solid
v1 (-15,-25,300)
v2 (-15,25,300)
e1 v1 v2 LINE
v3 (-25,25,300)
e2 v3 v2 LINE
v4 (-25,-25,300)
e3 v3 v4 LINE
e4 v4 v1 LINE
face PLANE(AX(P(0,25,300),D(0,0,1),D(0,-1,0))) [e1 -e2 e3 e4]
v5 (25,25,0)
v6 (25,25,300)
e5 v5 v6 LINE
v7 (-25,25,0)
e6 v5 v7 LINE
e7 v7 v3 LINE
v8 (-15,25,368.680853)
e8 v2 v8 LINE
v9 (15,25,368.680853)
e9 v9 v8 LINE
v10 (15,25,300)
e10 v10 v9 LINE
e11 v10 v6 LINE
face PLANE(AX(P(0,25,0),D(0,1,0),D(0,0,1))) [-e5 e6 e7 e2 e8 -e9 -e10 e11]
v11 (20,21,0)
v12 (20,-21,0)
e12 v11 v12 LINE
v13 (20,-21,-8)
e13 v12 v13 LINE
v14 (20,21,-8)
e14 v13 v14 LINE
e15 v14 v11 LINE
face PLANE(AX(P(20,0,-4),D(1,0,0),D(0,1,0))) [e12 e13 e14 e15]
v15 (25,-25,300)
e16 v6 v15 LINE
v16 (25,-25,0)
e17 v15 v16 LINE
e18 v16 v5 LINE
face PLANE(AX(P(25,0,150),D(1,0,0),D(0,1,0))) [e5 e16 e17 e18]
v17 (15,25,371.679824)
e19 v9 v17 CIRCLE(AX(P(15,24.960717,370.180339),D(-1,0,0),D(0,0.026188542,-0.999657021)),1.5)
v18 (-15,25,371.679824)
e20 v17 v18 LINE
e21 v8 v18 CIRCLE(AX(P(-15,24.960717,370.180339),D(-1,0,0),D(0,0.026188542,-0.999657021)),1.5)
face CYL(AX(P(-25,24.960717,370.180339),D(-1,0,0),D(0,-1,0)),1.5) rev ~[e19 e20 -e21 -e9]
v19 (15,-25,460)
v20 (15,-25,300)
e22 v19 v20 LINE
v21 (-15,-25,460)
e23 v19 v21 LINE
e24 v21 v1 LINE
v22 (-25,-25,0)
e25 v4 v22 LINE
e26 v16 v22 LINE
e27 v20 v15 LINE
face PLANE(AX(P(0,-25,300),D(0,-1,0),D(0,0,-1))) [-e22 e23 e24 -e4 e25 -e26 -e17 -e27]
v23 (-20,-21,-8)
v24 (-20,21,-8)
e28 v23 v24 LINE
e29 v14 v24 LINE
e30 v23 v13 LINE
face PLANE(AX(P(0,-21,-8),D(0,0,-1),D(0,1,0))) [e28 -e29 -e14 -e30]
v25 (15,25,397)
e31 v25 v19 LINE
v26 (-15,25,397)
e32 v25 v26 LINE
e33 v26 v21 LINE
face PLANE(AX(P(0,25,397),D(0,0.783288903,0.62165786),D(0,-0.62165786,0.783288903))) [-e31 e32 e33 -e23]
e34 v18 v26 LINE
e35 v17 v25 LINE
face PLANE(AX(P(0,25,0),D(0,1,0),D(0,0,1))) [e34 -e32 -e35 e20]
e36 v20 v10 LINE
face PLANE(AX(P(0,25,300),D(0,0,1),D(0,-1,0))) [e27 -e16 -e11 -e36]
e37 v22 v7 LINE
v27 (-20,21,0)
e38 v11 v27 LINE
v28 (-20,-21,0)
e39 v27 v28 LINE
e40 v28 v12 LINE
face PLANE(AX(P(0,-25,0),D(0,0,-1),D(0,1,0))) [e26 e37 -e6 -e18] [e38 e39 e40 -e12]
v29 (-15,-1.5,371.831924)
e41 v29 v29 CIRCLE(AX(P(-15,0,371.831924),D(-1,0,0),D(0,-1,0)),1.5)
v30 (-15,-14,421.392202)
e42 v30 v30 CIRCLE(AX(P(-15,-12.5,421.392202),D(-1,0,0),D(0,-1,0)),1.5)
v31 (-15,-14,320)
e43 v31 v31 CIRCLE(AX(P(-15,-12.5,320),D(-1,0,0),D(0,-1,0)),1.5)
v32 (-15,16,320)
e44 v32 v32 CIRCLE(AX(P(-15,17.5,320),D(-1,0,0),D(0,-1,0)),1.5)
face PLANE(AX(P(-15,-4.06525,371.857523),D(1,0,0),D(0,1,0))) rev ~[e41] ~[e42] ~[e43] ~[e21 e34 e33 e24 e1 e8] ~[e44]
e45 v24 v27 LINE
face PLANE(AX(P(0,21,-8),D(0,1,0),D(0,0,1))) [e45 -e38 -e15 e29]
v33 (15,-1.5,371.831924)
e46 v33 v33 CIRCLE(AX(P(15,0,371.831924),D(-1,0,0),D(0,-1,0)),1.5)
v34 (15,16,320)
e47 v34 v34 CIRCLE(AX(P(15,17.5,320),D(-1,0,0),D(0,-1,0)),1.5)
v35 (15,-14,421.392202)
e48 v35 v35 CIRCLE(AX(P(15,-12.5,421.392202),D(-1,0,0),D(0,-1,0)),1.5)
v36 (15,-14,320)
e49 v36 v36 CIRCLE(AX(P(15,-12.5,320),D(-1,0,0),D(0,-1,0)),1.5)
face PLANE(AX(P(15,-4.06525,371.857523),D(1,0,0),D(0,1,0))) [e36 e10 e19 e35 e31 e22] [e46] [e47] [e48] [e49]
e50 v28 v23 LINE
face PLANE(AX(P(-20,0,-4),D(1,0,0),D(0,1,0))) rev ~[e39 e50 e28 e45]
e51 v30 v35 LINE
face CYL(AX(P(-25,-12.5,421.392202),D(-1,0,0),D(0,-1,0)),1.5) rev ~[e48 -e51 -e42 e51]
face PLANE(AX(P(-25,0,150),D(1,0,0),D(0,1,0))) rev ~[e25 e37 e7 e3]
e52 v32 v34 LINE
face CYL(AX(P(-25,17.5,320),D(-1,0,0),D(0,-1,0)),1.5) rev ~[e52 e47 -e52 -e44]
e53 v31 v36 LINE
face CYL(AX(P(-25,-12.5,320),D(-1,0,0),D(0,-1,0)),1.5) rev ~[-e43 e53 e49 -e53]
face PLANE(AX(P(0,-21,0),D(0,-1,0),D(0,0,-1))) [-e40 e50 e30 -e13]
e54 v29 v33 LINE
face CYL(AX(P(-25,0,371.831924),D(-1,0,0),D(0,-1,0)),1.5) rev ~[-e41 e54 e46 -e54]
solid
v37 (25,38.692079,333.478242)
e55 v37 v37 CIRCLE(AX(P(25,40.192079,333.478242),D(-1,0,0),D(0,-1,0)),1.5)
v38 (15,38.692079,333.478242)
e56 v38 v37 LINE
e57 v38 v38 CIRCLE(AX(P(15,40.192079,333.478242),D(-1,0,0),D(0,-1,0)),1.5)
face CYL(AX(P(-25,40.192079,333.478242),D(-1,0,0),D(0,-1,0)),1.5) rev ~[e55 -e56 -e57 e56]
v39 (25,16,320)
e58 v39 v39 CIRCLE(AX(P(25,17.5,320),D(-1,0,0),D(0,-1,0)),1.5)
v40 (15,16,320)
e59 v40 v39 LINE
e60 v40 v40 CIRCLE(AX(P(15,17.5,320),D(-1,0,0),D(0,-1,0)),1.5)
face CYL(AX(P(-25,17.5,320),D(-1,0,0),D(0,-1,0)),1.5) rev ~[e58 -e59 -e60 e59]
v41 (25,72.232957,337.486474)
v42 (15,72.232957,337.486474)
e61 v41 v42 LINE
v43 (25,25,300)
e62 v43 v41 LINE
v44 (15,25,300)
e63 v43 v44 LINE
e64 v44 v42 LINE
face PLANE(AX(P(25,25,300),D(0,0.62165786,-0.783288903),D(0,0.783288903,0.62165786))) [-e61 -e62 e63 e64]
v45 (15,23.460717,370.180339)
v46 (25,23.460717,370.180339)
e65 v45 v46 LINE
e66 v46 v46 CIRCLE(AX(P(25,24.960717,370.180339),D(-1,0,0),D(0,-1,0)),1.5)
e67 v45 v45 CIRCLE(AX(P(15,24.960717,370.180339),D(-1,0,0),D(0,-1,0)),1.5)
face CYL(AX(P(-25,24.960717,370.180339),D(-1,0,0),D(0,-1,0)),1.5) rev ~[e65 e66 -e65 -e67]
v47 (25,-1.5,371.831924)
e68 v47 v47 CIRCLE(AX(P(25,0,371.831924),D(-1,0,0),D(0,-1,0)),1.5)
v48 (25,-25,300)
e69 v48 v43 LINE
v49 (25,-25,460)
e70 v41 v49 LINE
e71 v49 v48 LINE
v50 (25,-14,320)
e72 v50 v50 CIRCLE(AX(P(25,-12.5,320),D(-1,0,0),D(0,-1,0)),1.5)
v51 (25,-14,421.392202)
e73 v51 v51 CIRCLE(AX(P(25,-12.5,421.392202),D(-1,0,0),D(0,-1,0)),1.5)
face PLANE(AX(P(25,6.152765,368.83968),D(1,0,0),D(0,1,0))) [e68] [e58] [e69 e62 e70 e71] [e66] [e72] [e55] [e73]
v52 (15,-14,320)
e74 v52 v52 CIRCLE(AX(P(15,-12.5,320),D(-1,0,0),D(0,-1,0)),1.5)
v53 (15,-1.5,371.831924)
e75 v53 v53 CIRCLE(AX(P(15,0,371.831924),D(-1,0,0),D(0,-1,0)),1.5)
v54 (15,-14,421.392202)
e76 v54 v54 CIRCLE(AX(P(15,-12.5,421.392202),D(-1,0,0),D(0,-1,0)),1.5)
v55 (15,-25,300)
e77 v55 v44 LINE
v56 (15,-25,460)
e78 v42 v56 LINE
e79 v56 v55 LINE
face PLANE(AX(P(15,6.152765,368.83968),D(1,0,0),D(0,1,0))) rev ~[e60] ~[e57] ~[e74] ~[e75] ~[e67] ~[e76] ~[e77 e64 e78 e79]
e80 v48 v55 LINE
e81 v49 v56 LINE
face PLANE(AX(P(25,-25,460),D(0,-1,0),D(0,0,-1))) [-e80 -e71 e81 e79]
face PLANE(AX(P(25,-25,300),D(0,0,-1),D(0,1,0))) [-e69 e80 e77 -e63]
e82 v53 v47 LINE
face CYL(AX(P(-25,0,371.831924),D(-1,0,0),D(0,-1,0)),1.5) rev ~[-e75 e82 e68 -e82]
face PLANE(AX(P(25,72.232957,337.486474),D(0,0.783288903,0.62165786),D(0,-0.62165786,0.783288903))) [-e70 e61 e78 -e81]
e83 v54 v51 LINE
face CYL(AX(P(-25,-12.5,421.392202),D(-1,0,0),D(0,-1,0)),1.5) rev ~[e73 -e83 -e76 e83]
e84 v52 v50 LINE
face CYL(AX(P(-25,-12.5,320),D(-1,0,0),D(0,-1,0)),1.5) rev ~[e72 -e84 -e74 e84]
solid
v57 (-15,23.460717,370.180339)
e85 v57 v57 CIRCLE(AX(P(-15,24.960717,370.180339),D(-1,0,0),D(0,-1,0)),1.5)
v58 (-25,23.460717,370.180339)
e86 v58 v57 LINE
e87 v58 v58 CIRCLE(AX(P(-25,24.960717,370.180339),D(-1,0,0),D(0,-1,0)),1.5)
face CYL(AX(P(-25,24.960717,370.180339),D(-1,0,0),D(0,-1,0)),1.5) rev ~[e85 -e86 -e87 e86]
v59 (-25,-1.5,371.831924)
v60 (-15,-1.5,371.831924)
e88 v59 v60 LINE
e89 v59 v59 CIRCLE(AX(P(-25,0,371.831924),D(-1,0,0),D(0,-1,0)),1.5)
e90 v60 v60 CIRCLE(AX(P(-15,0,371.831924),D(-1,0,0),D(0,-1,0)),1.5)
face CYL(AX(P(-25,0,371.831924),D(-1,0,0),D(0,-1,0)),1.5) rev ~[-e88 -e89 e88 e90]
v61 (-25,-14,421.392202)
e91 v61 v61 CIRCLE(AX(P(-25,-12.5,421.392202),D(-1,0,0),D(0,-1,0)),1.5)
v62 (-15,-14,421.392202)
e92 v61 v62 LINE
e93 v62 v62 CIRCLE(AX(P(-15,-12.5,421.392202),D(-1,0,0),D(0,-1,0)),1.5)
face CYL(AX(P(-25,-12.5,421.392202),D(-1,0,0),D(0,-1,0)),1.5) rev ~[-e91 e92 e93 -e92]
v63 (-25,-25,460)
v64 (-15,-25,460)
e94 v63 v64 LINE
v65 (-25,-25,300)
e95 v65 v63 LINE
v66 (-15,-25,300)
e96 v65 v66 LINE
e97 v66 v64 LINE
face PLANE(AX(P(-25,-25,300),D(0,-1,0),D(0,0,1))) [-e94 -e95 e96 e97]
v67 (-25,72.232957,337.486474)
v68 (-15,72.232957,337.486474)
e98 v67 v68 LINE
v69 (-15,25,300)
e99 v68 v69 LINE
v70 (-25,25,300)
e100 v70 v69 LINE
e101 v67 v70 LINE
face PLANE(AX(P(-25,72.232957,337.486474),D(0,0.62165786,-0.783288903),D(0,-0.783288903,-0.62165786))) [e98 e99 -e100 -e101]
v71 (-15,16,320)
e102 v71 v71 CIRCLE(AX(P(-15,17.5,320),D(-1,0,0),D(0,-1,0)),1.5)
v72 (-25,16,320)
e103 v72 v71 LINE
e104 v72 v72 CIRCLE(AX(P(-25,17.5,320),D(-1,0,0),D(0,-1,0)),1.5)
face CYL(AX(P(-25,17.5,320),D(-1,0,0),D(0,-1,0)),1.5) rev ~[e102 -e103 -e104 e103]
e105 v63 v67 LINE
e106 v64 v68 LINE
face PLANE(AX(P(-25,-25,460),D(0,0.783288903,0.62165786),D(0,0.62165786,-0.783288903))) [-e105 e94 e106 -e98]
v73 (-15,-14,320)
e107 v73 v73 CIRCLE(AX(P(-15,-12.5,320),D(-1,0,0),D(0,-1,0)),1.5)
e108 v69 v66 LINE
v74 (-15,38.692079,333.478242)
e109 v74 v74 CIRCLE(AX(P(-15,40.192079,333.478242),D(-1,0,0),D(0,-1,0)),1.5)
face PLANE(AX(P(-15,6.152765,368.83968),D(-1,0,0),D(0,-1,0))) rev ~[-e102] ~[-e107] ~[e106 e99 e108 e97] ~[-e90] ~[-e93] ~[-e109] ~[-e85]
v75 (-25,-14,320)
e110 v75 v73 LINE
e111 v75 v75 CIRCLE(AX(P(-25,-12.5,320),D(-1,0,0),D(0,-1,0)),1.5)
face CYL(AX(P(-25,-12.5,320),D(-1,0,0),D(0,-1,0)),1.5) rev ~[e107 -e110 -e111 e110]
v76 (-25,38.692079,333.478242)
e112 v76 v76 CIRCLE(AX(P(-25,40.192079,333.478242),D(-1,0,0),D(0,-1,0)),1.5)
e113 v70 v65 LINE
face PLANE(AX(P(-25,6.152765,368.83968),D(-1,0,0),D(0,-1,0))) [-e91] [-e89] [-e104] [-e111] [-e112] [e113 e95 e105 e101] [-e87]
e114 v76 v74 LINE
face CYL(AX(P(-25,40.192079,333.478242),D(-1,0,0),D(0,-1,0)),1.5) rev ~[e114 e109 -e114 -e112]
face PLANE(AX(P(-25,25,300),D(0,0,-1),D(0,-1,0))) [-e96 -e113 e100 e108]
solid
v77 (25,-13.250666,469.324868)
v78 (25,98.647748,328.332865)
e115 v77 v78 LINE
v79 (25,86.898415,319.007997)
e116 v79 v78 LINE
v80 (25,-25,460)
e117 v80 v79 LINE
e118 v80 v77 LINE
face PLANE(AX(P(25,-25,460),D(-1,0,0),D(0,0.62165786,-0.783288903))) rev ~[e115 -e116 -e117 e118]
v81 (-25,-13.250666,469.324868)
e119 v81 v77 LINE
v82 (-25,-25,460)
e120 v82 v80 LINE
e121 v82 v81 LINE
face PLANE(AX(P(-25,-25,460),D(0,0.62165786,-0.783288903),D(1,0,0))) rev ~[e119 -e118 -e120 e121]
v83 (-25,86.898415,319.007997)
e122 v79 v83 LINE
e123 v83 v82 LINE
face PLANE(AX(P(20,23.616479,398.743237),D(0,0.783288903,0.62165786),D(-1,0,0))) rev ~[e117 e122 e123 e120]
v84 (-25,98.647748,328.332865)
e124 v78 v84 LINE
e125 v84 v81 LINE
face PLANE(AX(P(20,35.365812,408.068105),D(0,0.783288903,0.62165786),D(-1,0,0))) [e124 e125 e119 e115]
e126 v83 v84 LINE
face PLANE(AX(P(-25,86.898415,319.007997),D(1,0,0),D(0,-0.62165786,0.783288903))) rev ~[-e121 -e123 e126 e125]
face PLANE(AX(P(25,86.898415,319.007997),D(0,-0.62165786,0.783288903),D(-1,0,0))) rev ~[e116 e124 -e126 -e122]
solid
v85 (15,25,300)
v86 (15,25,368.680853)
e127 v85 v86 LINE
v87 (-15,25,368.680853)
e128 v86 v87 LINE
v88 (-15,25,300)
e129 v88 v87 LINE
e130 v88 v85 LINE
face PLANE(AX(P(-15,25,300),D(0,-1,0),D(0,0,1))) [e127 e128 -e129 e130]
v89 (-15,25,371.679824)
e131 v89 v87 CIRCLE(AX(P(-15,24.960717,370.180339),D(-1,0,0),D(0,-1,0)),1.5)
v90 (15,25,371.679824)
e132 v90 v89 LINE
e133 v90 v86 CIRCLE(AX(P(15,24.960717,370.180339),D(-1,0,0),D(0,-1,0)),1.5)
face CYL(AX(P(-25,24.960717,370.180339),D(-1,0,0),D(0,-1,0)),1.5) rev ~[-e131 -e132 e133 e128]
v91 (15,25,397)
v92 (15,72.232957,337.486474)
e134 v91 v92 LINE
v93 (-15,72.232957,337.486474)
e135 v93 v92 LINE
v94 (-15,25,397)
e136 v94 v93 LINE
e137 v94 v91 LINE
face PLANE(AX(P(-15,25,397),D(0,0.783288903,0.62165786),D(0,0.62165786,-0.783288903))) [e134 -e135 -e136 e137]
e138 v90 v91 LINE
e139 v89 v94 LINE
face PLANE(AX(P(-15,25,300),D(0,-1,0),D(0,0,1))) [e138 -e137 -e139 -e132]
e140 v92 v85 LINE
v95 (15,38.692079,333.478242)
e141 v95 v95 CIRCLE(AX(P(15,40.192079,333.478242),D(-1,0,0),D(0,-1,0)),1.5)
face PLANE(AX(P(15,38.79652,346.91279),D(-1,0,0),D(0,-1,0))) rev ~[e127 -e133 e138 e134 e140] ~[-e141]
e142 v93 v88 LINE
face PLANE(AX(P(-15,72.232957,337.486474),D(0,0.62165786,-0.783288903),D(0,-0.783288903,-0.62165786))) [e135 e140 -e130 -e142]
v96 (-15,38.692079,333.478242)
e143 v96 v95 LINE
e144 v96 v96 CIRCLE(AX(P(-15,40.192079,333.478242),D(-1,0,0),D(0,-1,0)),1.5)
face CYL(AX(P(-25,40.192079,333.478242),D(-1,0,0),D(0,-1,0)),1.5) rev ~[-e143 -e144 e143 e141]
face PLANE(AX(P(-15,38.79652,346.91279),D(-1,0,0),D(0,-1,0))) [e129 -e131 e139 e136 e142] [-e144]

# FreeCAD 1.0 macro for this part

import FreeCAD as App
import Part
import Sketcher
Q = App.Units.Quantity


def add_polygon(sketch, points):
    """Adds a closed chain of lines whose ends are joined by coincident constraints."""
    first, n = sketch.GeometryCount, len(points)
    for a, b in zip(points, points[1:] + points[:1]):
        sketch.addGeometry(Part.LineSegment(App.Vector(*a, 0), App.Vector(*b, 0)), False)
    for i in range(n):
        sketch.addConstraint(Sketcher.Constraint("Coincident", first + i, 2, first + (i + 1) % n, 1))

doc = App.newDocument("Part")
body = doc.addObject("PartDesign::Body", "Body")

sketch1 = doc.addObject("Sketcher::SketchObject", "Sketch")
body.addObject(sketch1)
sketch1.AttachmentSupport = (doc.YZ_Plane, [""])
sketch1.MapMode = "FlatFace"
add_polygon(sketch1, [(21, 0), (-21, 0), (-21, -8), (21, -8)])
sketch1.addConstraint([
    Sketcher.Constraint("Horizontal", 0),
    Sketcher.Constraint("Vertical", 1),
    Sketcher.Constraint("Horizontal", 2),
    Sketcher.Constraint("Vertical", 3),
    Sketcher.Constraint("Symmetric", 0, 2, 3, 2, -1, 1),
    Sketcher.Constraint("DistanceX", 0, 2, 0, 1, Q("42 mm")),
    Sketcher.Constraint("DistanceY", 1, 2, 1, 1, Q("8 mm")),
])
pad1 = doc.addObject("PartDesign::Pad", "Pad")
body.addObject(pad1)
pad1.Profile = sketch1
pad1.Length = 40
pad1.Midplane = True

sketch2 = doc.addObject("Sketcher::SketchObject", "Sketch001")
body.addObject(sketch2)
sketch2.AttachmentSupport = (doc.YZ_Plane, [""])
sketch2.MapMode = "FlatFace"
add_polygon(sketch2, [(25, 0), (25, 300), (-25, 300), (-25, 0)])
sketch2.addConstraint([
    Sketcher.Constraint("Vertical", 0),
    Sketcher.Constraint("Horizontal", 1),
    Sketcher.Constraint("Vertical", 2),
    Sketcher.Constraint("Horizontal", 3),
    Sketcher.Constraint("Symmetric", 2, 2, 3, 2, -1, 1),
    Sketcher.Constraint("DistanceX", 1, 2, 1, 1, Q("50 mm")),
    Sketcher.Constraint("DistanceY", 0, 1, 0, 2, Q("300 mm")),
])
pad2 = doc.addObject("PartDesign::Pad", "Pad001")
body.addObject(pad2)
pad2.Profile = sketch2
pad2.Length = 50
pad2.Midplane = True

sketch3 = doc.addObject("Sketcher::SketchObject", "Sketch002")
body.addObject(sketch3)
sketch3.AttachmentSupport = (doc.YZ_Plane, [""])
sketch3.MapMode = "FlatFace"
add_polygon(sketch3, [(-25, 460), (-25, 300), (25, 300), (25, 397)])
sketch3.addConstraint([
    Sketcher.Constraint("Vertical", 0),
    Sketcher.Constraint("Horizontal", 1),
    Sketcher.Constraint("Vertical", 2),
    Sketcher.Constraint("DistanceX", 1, 1, 1, 2, Q("50 mm")),
    Sketcher.Constraint("DistanceY", 0, 2, 0, 1, Q("160 mm")),
    Sketcher.Constraint("DistanceY", 2, 1, 2, 2, Q("97 mm")),
    Sketcher.Constraint("DistanceX", 0, 2, -1, 1, Q("25 mm")),
    Sketcher.Constraint("DistanceY", -1, 1, 0, 2, Q("300 mm")),
])
pad3 = doc.addObject("PartDesign::Pad", "Pad002")
body.addObject(pad3)
pad3.Profile = sketch3
pad3.Length = 30
pad3.Midplane = True
body2 = doc.addObject("PartDesign::Body", "Body001")

sketch4 = doc.addObject("Sketcher::SketchObject", "Sketch003")
body2.addObject(sketch4)
sketch4.AttachmentSupport = (doc.getObject("YZ_Plane001"), [""])
sketch4.MapMode = "FlatFace"
sketch4.AttachmentOffset = App.Placement(App.Vector(0, 0, -15), App.Rotation())
add_polygon(sketch4, [(25, 300), (25, 397), (72, 337)])
sketch4.addConstraint([
    Sketcher.Constraint("Vertical", 0),
    Sketcher.Constraint("Perpendicular", 1, 2),
    Sketcher.Constraint("DistanceY", 0, 1, 0, 2, Q("97 mm")),
    Sketcher.Constraint("DistanceX", -1, 1, 0, 2, Q("25 mm")),
    Sketcher.Constraint("DistanceY", -1, 1, 0, 2, Q("397 mm")),
    Sketcher.Constraint("Distance", 1, Q("75.979024 mm")),
])
pad4 = doc.addObject("PartDesign::Pad", "Pad003")
body2.addObject(pad4)
pad4.Profile = sketch4
pad4.Length = 30
body3 = doc.addObject("PartDesign::Body", "Body002")

sketch5 = doc.addObject("Sketcher::SketchObject", "Sketch004")
body3.addObject(sketch5)
sketch5.AttachmentSupport = (doc.getObject("YZ_Plane002"), [""])
sketch5.MapMode = "FlatFace"
sketch5.AttachmentOffset = App.Placement(App.Vector(0, 0, -25), App.Rotation())
add_polygon(sketch5, [(25, 300), (-25, 300), (-25, 460), (72, 337)])
sketch5.addConstraint([
    Sketcher.Constraint("Horizontal", 0),
    Sketcher.Constraint("Vertical", 1),
    Sketcher.Constraint("Perpendicular", 2, 3),
    Sketcher.Constraint("DistanceX", 0, 2, 0, 1, Q("50 mm")),
    Sketcher.Constraint("DistanceY", 1, 1, 1, 2, Q("160 mm")),
    Sketcher.Constraint("DistanceX", 0, 2, -1, 1, Q("25 mm")),
    Sketcher.Constraint("DistanceY", -1, 1, 0, 2, Q("300 mm")),
    Sketcher.Constraint("Distance", 2, Q("156.409117 mm")),
])
pad5 = doc.addObject("PartDesign::Pad", "Pad004")
body3.addObject(pad5)
pad5.Profile = sketch5
pad5.Length = 10
body4 = doc.addObject("PartDesign::Body", "Body003")

sketch6 = doc.addObject("Sketcher::SketchObject", "Sketch005")
body4.addObject(sketch6)
sketch6.AttachmentSupport = (doc.getObject("YZ_Plane003"), [""])
sketch6.MapMode = "FlatFace"
sketch6.AttachmentOffset = App.Placement(App.Vector(0, 0, 25), App.Rotation())
add_polygon(sketch6, [(-25, 460), (-25, 300), (25, 300), (72, 337)])
sketch6.addConstraint([
    Sketcher.Constraint("Vertical", 0),
    Sketcher.Constraint("Horizontal", 1),
    Sketcher.Constraint("Perpendicular", 2, 3),
    Sketcher.Constraint("DistanceX", 1, 1, 1, 2, Q("50 mm")),
    Sketcher.Constraint("DistanceY", 0, 2, 0, 1, Q("160 mm")),
    Sketcher.Constraint("DistanceX", 0, 2, -1, 1, Q("25 mm")),
    Sketcher.Constraint("DistanceY", -1, 1, 0, 2, Q("300 mm")),
    Sketcher.Constraint("Distance", 2, Q("60.300812 mm")),
])
pad6 = doc.addObject("PartDesign::Pad", "Pad005")
body4.addObject(pad6)
pad6.Profile = sketch6
pad6.Length = 10
pad6.Reversed = True
body5 = doc.addObject("PartDesign::Body", "Body004")
body5.AllowCompound = True

sketch7 = doc.addObject("Sketcher::SketchObject", "Sketch006")
body5.addObject(sketch7)
sketch7.AttachmentSupport = (doc.getObject("YZ_Plane004"), [""])
sketch7.MapMode = "FlatFace"
sketch7.AttachmentOffset = App.Placement(App.Vector(0, 0, -25), App.Rotation())
sketch7.addGeometry([
    Part.Circle(App.Vector(40.2, 333.5, 0), App.Vector(0, 0, 1), 1.5),
    Part.Circle(App.Vector(17.5, 320, 0), App.Vector(0, 0, 1), 1.5),
    Part.Circle(App.Vector(-12.5, 320, 0), App.Vector(0, 0, 1), 1.5),
    Part.Circle(App.Vector(0, 371.8, 0), App.Vector(0, 0, 1), 1.5),
    Part.Circle(App.Vector(25, 370.2, 0), App.Vector(0, 0, 1), 1.5),
    Part.Circle(App.Vector(-12.5, 421.4, 0), App.Vector(0, 0, 1), 1.5),
], False)
sketch7.addConstraint([
    Sketcher.Constraint("Equal", 0, 1),
    Sketcher.Constraint("Equal", 1, 2),
    Sketcher.Constraint("Equal", 2, 3),
    Sketcher.Constraint("Equal", 3, 4),
    Sketcher.Constraint("Equal", 4, 5),
    Sketcher.Constraint("PointOnObject", 3, 3, -2),
    Sketcher.Constraint("Horizontal", 1, 3, 2, 3),
    Sketcher.Constraint("Vertical", 2, 3, 5, 3),
    Sketcher.Constraint("Diameter", 0, Q("3 mm")),
    Sketcher.Constraint("DistanceY", -1, 1, 1, 3, Q("320 mm")),
    Sketcher.Constraint("DistanceX", 2, 3, 1, 3, Q("30 mm")),
    Sketcher.Constraint("DistanceX", -1, 1, 1, 3, Q("17.5 mm")),
    Sketcher.Constraint("DistanceX", -1, 1, 0, 3, Q("40.192079 mm")),
    Sketcher.Constraint("DistanceY", -1, 1, 4, 3, Q("370.180339 mm")),
    Sketcher.Constraint("DistanceY", 0, 3, 3, 3, Q("38.353682 mm")),
    Sketcher.Constraint("DistanceX", 4, 3, 0, 3, Q("15.231362 mm")),
    Sketcher.Constraint("DistanceY", 3, 3, 5, 3, Q("49.560279 mm")),
    Sketcher.Constraint("DistanceY", -1, 1, 0, 3, Q("333.478242 mm")),
])
pad7 = doc.addObject("PartDesign::Pad", "Pad006")
body5.addObject(pad7)
pad7.Profile = sketch7
pad7.Length = 50.001
doc.recompute()

body6 = doc.addObject("PartDesign::Body", "Body005")
body6.BaseFeature = body5
boolean = doc.addObject("PartDesign::Boolean", "Boolean")
body.addObject(boolean)
boolean.Type = "Cut"
boolean.addObjects([body6])
doc.recompute()

body7 = doc.addObject("PartDesign::Body", "Body006")
body7.BaseFeature = body5
boolean2 = doc.addObject("PartDesign::Boolean", "Boolean001")
body2.addObject(boolean2)
boolean2.Type = "Cut"
boolean2.addObjects([body7])
doc.recompute()

body8 = doc.addObject("PartDesign::Body", "Body007")
body8.BaseFeature = body5
boolean3 = doc.addObject("PartDesign::Boolean", "Boolean002")
body3.addObject(boolean3)
boolean3.Type = "Cut"
boolean3.addObjects([body8])
doc.recompute()

boolean4 = doc.addObject("PartDesign::Boolean", "Boolean003")
body4.addObject(boolean4)
boolean4.Type = "Cut"
boolean4.addObjects([body5])
body9 = doc.addObject("PartDesign::Body", "Body008")

sketch8 = doc.addObject("Sketcher::SketchObject", "Sketch007")
body9.addObject(sketch8)
sketch8.Placement = App.Placement(App.Vector(0, 208.652806, 165.597465), App.Rotation(App.Vector(-1, 0, 0), App.Vector(0, -0.62165786, 0.783288903), App.Vector(0, 0.783288903, 0.62165786), "ZXY"))
add_polygon(sketch8, [(-25, 376), (-25, 196), (25, 196), (25, 376)])
sketch8.addConstraint([
    Sketcher.Constraint("Vertical", 0),
    Sketcher.Constraint("Horizontal", 1),
    Sketcher.Constraint("Vertical", 2),
    Sketcher.Constraint("Horizontal", 3),
    Sketcher.Constraint("DistanceX", 1, 1, 1, 2, Q("50 mm")),
    Sketcher.Constraint("DistanceY", 0, 2, 0, 1, Q("180 mm")),
    Sketcher.Constraint("DistanceX", 0, 2, -1, 1, Q("25 mm")),
    Sketcher.Constraint("DistanceY", -1, 1, 0, 2, Q("195.854342 mm")),
])
pad8 = doc.addObject("PartDesign::Pad", "Pad007")
body9.addObject(pad8)
pad8.Profile = sketch8
pad8.Length = 15

doc.recompute()
